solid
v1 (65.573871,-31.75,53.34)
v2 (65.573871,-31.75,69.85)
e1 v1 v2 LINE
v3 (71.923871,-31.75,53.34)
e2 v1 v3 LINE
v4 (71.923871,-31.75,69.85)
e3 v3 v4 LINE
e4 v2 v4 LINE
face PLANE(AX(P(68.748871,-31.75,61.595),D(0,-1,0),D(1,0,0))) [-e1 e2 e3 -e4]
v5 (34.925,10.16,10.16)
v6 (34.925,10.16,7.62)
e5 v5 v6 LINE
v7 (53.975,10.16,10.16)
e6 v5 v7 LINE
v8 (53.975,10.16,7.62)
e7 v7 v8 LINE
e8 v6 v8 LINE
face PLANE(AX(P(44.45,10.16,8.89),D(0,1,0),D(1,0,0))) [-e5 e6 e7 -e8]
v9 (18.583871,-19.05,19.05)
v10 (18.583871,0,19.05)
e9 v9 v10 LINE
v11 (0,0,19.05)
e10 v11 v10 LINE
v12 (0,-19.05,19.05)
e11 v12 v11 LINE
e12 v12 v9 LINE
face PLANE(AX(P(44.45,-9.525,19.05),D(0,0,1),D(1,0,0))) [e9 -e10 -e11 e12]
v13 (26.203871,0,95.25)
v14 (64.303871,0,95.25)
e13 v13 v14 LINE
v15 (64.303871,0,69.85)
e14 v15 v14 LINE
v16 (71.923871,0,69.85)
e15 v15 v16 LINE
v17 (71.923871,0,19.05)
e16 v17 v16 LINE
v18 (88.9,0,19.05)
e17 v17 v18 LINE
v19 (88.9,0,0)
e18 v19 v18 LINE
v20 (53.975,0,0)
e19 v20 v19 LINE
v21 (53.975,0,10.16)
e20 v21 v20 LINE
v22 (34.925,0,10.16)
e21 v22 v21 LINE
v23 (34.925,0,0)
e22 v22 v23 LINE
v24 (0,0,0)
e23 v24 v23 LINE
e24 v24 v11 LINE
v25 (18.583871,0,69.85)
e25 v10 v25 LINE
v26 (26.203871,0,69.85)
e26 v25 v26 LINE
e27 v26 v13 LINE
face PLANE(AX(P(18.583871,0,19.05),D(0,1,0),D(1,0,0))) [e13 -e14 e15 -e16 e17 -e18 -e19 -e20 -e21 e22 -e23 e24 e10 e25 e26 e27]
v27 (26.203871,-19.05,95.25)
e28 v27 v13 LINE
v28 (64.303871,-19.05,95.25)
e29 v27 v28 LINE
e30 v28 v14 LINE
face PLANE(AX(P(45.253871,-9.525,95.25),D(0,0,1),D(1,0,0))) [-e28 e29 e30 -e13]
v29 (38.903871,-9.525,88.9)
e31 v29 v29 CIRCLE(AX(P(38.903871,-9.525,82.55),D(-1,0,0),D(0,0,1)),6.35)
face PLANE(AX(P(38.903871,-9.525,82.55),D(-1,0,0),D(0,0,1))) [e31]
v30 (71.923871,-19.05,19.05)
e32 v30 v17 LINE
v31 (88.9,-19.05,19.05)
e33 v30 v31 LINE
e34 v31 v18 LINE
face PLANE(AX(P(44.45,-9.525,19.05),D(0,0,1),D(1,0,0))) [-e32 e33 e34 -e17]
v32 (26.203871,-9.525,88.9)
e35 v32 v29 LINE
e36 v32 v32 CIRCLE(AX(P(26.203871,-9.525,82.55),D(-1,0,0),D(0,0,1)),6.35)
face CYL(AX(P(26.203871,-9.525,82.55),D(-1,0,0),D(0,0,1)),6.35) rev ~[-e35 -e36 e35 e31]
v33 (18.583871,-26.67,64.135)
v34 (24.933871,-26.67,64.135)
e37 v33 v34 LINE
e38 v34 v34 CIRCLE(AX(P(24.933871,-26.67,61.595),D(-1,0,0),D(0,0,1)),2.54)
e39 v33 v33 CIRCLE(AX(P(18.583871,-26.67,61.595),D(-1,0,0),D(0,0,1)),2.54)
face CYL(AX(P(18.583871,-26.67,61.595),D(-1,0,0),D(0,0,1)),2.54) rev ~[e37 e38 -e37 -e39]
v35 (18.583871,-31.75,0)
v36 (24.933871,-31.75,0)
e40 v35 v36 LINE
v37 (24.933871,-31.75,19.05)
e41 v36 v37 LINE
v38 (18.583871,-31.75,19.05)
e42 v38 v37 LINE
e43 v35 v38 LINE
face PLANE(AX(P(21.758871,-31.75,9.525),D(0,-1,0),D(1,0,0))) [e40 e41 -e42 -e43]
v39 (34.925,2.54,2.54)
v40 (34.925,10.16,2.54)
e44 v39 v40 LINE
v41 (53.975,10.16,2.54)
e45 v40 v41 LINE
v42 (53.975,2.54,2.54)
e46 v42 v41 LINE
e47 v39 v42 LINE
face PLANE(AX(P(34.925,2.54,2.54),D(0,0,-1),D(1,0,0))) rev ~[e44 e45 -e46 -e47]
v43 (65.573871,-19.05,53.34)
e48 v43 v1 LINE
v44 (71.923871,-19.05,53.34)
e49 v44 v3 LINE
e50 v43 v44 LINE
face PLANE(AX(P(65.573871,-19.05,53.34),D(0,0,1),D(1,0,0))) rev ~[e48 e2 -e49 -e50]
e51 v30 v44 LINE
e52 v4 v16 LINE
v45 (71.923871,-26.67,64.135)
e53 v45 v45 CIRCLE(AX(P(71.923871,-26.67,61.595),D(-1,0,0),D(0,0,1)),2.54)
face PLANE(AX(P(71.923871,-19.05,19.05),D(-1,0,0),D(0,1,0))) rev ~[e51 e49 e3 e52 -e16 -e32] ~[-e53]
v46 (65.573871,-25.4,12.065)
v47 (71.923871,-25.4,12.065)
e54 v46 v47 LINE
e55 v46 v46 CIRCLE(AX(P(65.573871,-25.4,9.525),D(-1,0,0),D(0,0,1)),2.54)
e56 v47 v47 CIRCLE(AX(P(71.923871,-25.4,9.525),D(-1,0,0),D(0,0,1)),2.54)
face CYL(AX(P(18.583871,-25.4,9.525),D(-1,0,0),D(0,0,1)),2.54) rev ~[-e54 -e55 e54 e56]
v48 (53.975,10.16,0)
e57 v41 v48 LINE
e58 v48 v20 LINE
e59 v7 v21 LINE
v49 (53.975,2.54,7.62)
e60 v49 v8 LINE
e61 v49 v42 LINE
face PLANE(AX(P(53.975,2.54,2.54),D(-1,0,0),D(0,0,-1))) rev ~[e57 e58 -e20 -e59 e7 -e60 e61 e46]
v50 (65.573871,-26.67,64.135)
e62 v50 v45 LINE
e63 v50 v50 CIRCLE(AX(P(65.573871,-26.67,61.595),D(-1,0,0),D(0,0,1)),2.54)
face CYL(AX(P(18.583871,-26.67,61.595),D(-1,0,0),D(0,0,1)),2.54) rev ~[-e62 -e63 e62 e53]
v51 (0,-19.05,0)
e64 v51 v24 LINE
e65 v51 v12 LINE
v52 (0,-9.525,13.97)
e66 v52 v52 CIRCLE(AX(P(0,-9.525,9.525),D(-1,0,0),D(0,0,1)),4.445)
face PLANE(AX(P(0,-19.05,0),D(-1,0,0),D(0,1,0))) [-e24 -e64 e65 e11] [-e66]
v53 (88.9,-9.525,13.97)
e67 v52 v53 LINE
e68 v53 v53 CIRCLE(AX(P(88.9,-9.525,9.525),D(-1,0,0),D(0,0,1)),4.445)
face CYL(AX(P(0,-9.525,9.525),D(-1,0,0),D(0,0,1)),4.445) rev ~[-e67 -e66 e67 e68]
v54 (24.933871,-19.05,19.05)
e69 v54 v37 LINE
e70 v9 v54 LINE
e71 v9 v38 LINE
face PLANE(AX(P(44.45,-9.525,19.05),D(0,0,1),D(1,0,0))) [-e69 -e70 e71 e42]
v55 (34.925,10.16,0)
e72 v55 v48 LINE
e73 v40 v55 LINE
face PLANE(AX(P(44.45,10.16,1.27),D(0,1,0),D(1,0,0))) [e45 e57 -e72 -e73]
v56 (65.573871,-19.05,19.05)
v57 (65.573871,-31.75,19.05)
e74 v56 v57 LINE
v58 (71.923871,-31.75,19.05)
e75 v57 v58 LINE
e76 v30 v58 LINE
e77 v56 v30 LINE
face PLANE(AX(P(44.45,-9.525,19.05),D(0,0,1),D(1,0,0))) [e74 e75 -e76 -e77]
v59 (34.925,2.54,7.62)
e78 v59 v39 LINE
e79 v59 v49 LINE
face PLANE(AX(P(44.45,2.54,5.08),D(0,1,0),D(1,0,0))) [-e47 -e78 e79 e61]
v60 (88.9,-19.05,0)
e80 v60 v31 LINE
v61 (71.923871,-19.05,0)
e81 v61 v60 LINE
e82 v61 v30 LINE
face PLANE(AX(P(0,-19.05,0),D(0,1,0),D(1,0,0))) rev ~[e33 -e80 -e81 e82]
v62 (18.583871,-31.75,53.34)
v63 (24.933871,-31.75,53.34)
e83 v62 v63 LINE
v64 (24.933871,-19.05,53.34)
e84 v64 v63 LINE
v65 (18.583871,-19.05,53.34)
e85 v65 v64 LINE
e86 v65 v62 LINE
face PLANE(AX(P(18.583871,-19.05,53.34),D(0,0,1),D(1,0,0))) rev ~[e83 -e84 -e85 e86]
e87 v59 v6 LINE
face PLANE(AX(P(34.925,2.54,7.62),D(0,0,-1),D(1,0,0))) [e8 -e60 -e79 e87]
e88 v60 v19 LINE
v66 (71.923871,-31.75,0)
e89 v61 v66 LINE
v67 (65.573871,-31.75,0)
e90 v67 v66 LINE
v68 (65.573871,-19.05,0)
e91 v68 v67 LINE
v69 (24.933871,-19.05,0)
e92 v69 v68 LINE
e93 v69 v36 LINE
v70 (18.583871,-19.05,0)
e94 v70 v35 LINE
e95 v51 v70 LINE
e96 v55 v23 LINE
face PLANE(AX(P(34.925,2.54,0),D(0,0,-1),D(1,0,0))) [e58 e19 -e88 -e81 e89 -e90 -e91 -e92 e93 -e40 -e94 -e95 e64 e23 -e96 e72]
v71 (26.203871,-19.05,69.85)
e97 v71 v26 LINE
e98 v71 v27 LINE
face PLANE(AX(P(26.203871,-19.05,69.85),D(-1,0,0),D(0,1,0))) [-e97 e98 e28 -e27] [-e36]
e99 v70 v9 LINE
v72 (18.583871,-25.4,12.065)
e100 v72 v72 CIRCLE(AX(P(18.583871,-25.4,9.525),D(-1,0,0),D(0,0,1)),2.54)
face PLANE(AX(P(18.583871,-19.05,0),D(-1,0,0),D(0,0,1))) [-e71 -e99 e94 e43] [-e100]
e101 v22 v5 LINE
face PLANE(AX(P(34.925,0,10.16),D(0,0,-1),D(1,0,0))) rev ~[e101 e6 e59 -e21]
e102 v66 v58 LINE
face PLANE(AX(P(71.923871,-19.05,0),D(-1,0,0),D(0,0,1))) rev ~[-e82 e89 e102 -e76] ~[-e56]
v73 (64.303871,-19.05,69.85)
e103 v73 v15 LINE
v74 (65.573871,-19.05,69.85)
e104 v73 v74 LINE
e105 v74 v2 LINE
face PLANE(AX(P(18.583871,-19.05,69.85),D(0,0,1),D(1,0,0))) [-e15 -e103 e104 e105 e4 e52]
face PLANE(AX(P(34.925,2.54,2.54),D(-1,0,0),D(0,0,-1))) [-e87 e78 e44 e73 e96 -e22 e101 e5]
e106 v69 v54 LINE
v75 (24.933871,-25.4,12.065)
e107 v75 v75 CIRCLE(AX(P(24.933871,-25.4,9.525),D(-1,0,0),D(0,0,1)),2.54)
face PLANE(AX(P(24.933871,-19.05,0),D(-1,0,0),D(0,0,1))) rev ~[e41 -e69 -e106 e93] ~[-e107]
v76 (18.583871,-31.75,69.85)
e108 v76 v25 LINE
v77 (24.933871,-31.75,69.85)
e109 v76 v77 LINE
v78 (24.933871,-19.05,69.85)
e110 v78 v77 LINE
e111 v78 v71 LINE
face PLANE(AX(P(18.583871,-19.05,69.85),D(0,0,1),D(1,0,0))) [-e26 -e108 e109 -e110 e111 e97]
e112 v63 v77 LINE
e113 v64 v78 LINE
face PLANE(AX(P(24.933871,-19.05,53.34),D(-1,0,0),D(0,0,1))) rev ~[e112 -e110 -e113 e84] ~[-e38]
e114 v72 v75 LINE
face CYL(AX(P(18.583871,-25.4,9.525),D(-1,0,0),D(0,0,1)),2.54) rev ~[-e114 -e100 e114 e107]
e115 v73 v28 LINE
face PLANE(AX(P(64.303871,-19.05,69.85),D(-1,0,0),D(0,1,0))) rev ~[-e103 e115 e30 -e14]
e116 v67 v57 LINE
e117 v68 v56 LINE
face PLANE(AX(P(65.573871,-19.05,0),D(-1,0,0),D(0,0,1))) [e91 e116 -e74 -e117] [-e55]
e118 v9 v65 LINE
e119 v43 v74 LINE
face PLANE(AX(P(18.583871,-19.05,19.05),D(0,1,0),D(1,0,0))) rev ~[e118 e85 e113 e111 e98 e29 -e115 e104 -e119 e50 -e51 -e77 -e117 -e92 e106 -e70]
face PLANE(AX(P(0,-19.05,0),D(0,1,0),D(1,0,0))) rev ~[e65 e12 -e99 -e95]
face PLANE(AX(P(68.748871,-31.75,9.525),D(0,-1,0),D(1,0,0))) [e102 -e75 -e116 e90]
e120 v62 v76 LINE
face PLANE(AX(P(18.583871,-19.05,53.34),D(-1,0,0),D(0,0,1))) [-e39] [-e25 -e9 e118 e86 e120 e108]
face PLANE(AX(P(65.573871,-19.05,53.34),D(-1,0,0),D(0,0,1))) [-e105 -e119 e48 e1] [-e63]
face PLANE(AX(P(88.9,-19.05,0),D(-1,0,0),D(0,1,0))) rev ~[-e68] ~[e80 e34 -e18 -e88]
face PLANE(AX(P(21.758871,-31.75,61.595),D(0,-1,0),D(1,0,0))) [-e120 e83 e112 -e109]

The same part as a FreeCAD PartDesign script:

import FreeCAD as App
import Part
import Sketcher

V = App.Vector
Q = App.Units.Quantity

doc = App.newDocument("Part")
body = doc.addObject("PartDesign::Body", "Body")

# Sketch on XY plane
sketch1 = doc.addObject("Sketcher::SketchObject", "Sketch")
body.addObject(sketch1)
sketch1.AttachmentSupport = (doc.XY_Plane, [""])
sketch1.MapMode = "FlatFace"
sketch1.addGeometry([
    Part.LineSegment(V(0, 0, 0), V(0, -19, 0)),
    Part.LineSegment(V(0, -19, 0), V(89, -19, 0)),
    Part.LineSegment(V(89, -19, 0), V(89, 0, 0)),
    Part.LineSegment(V(89, 0, 0), V(0, 0, 0)),
], False)
sketch1.addConstraint([
    Sketcher.Constraint("Coincident", 0, 2, 1, 1),
    Sketcher.Constraint("Coincident", 1, 2, 2, 1),
    Sketcher.Constraint("Coincident", 2, 2, 3, 1),
    Sketcher.Constraint("Coincident", 3, 2, 0, 1),
    Sketcher.Constraint("Vertical", 0),
    Sketcher.Constraint("Horizontal", 1),
    Sketcher.Constraint("Vertical", 2),
    Sketcher.Constraint("Horizontal", 3),
    Sketcher.Constraint("Coincident", 3, 2, -1, 1),
    Sketcher.Constraint("DistanceX", 1, 1, 1, 2, Q("3.5 in")),
    Sketcher.Constraint("DistanceY", 0, 2, 0, 1, Q("0.75 in")),
])
pad1 = doc.addObject("PartDesign::Pad", "Pad")
body.addObject(pad1)
pad1.Profile = sketch1
pad1.Length = Q("0.75 in")

# Sketch on XZ plane
sketch2 = doc.addObject("Sketcher::SketchObject", "Sketch001")
body.addObject(sketch2)
sketch2.AttachmentSupport = (doc.XZ_Plane, [""])
sketch2.MapMode = "FlatFace"
sketch2.AttachmentOffset = App.Placement(V(0, 0, 0.75 * 25.4), App.Rotation())
sketch2.addGeometry([
    Part.LineSegment(V(19, 19, 0), V(19, 0, 0)),  # 0
    Part.LineSegment(V(19, 0, 0), V(25, 0, 0)),  # 1
    Part.LineSegment(V(25, 0, 0), V(25, 19, 0)),  # 2
    Part.LineSegment(V(25, 19, 0), V(19, 19, 0)),  # 3
    Part.LineSegment(V(66, 19, 0), V(66, 0, 0)),  # 4
    Part.LineSegment(V(66, 0, 0), V(72, 0, 0)),  # 5
    Part.LineSegment(V(72, 0, 0), V(72, 19, 0)),  # 6
    Part.LineSegment(V(72, 19, 0), V(66, 19, 0)),  # 7
], False)
sketch2.addConstraint([
    Sketcher.Constraint("Coincident", 0, 2, 1, 1),
    Sketcher.Constraint("Coincident", 1, 2, 2, 1),
    Sketcher.Constraint("Coincident", 2, 2, 3, 1),
    Sketcher.Constraint("Coincident", 3, 2, 0, 1),
    Sketcher.Constraint("Coincident", 4, 2, 5, 1),
    Sketcher.Constraint("Coincident", 5, 2, 6, 1),
    Sketcher.Constraint("Coincident", 6, 2, 7, 1),
    Sketcher.Constraint("Coincident", 7, 2, 4, 1),
    Sketcher.Constraint("Vertical", 0),
    Sketcher.Constraint("Horizontal", 1),
    Sketcher.Constraint("Vertical", 2),
    Sketcher.Constraint("Horizontal", 3),
    Sketcher.Constraint("Vertical", 4),
    Sketcher.Constraint("Horizontal", 5),
    Sketcher.Constraint("Vertical", 6),
    Sketcher.Constraint("Horizontal", 7),
    Sketcher.Constraint("PointOnObject", 0, 2, -1),
    Sketcher.Constraint("PointOnObject", 4, 2, -1),
    Sketcher.Constraint("Horizontal", 3, 2, 6, 2),
    Sketcher.Constraint("Equal", 3, 5),
    Sketcher.Constraint("DistanceX", 1, 1, 1, 2, Q("0.25 in")),
    Sketcher.Constraint("DistanceY", 0, 2, 0, 1, Q("0.75 in")),
    Sketcher.Constraint("DistanceX", 1, 2, 4, 2, Q("1.6 in")),
    Sketcher.Constraint("DistanceX", -1, 1, 0, 2, Q("18.583871 mm")),
])
pad2 = doc.addObject("PartDesign::Pad", "Pad001")
body.addObject(pad2)
pad2.Profile = sketch2
pad2.Length = Q("0.5 in")

# Sketch on YZ plane
sketch3 = doc.addObject("Sketcher::SketchObject", "Sketch002")
body.addObject(sketch3)
sketch3.AttachmentSupport = (doc.YZ_Plane, [""])
sketch3.MapMode = "FlatFace"
sketch3.addGeometry(Part.Circle(V(-9.5, 9.5, 0), V(0, 0, 1), 4.4), False)
sketch3.addConstraint([
    Sketcher.Constraint("Diameter", 0, Q("0.35 in")),
    Sketcher.Constraint("DistanceX", 0, 3, -1, 1, Q("0.375 in")),
    Sketcher.Constraint("DistanceY", -1, 1, 0, 3, Q("0.375 in")),
])
pocket1 = doc.addObject("PartDesign::Pocket", "Pocket")
body.addObject(pocket1)
pocket1.Profile = sketch3
pocket1.Length = Q("3.79 in")
pocket1.Reversed = True

# Sketch on YZ plane
sketch4 = doc.addObject("Sketcher::SketchObject", "Sketch003")
body.addObject(sketch4)
sketch4.AttachmentSupport = (doc.YZ_Plane, [""])
sketch4.MapMode = "FlatFace"
sketch4.AttachmentOffset = App.Placement(V(0, 0, 18.583871), App.Rotation())
sketch4.addGeometry(Part.Circle(V(-25.4, 9.5, 0), V(0, 0, 1), 2.5), False)
sketch4.addConstraint([
    Sketcher.Constraint("Diameter", 0, Q("0.2 in")),
    Sketcher.Constraint("DistanceX", 0, 3, -1, 1, Q("1 in")),
    Sketcher.Constraint("DistanceY", -1, 1, 0, 3, Q("0.375 in")),
])
pocket2 = doc.addObject("PartDesign::Pocket", "Pocket001")
body.addObject(pocket2)
pocket2.Profile = sketch4
pocket2.Length = Q("3.79 in")
pocket2.Reversed = True

# Sketch on XY plane
sketch5 = doc.addObject("Sketcher::SketchObject", "Sketch004")
body.addObject(sketch5)
sketch5.AttachmentSupport = (doc.XY_Plane, [""])
sketch5.MapMode = "FlatFace"
sketch5.AttachmentOffset = App.Placement(V(0, 0, 0.75 * 25.4), App.Rotation())
sketch5.addGeometry([
    Part.LineSegment(V(19, 0, 0), V(19, -19, 0)),
    Part.LineSegment(V(19, -19, 0), V(72, -19, 0)),
    Part.LineSegment(V(72, -19, 0), V(72, 0, 0)),
    Part.LineSegment(V(72, 0, 0), V(19, 0, 0)),
], False)
sketch5.addConstraint([
    Sketcher.Constraint("Coincident", 0, 2, 1, 1),
    Sketcher.Constraint("Coincident", 1, 2, 2, 1),
    Sketcher.Constraint("Coincident", 2, 2, 3, 1),
    Sketcher.Constraint("Coincident", 3, 2, 0, 1),
    Sketcher.Constraint("Vertical", 0),
    Sketcher.Constraint("Horizontal", 1),
    Sketcher.Constraint("Vertical", 2),
    Sketcher.Constraint("Horizontal", 3),
    Sketcher.Constraint("PointOnObject", 2, 2, -1),
    Sketcher.Constraint("DistanceX", 1, 1, 1, 2, Q("2.1 in")),
    Sketcher.Constraint("DistanceY", 0, 2, 0, 1, Q("0.75 in")),
    Sketcher.Constraint("DistanceX", -1, 1, 0, 2, Q("18.583871 mm")),
])
pad3 = doc.addObject("PartDesign::Pad", "Pad002")
body.addObject(pad3)
pad3.Profile = sketch5
pad3.Length = Q("2 in")

# Sketch on XZ plane
sketch6 = doc.addObject("Sketcher::SketchObject", "Sketch005")
body.addObject(sketch6)
sketch6.AttachmentSupport = (doc.XZ_Plane, [""])
sketch6.MapMode = "FlatFace"
sketch6.AttachmentOffset = App.Placement(V(0, 0, 0.75 * 25.4), App.Rotation())
sketch6.addGeometry([
    Part.LineSegment(V(19, 70, 0), V(19, 53, 0)),  # 0
    Part.LineSegment(V(19, 53, 0), V(25, 53, 0)),  # 1
    Part.LineSegment(V(25, 53, 0), V(25, 70, 0)),  # 2
    Part.LineSegment(V(25, 70, 0), V(19, 70, 0)),  # 3
    Part.LineSegment(V(66, 70, 0), V(66, 53, 0)),  # 4
    Part.LineSegment(V(66, 53, 0), V(72, 53, 0)),  # 5
    Part.LineSegment(V(72, 53, 0), V(72, 70, 0)),  # 6
    Part.LineSegment(V(72, 70, 0), V(66, 70, 0)),  # 7
], False)
sketch6.addConstraint([
    Sketcher.Constraint("Coincident", 0, 2, 1, 1),
    Sketcher.Constraint("Coincident", 1, 2, 2, 1),
    Sketcher.Constraint("Coincident", 2, 2, 3, 1),
    Sketcher.Constraint("Coincident", 3, 2, 0, 1),
    Sketcher.Constraint("Coincident", 4, 2, 5, 1),
    Sketcher.Constraint("Coincident", 5, 2, 6, 1),
    Sketcher.Constraint("Coincident", 6, 2, 7, 1),
    Sketcher.Constraint("Coincident", 7, 2, 4, 1),
    Sketcher.Constraint("Vertical", 0),
    Sketcher.Constraint("Horizontal", 1),
    Sketcher.Constraint("Vertical", 2),
    Sketcher.Constraint("Horizontal", 3),
    Sketcher.Constraint("Vertical", 4),
    Sketcher.Constraint("Horizontal", 5),
    Sketcher.Constraint("Vertical", 6),
    Sketcher.Constraint("Horizontal", 7),
    Sketcher.Constraint("Horizontal", 1, 2, 4, 2),
    Sketcher.Constraint("Horizontal", 3, 2, 6, 2),
    Sketcher.Constraint("Equal", 3, 5),
    Sketcher.Constraint("DistanceX", 1, 1, 1, 2, Q("0.25 in")),
    Sketcher.Constraint("DistanceY", 0, 2, 0, 1, Q("0.65 in")),
    Sketcher.Constraint("DistanceY", -1, 1, 0, 2, Q("2.1 in")),
    Sketcher.Constraint("DistanceX", 1, 2, 4, 2, Q("1.6 in")),
    Sketcher.Constraint("DistanceX", -1, 1, 0, 2, Q("18.583871 mm")),
])
pad4 = doc.addObject("PartDesign::Pad", "Pad003")
body.addObject(pad4)
pad4.Profile = sketch6
pad4.Length = Q("0.5 in")

# Sketch on YZ plane
sketch7 = doc.addObject("Sketcher::SketchObject", "Sketch006")
body.addObject(sketch7)
sketch7.AttachmentSupport = (doc.YZ_Plane, [""])
sketch7.MapMode = "FlatFace"
sketch7.AttachmentOffset = App.Placement(V(0, 0, 18.583871), App.Rotation())
sketch7.addGeometry(Part.Circle(V(-26.7, 61.6, 0), V(0, 0, 1), 2.5), False)
sketch7.addConstraint([
    Sketcher.Constraint("Diameter", 0, Q("0.2 in")),
    Sketcher.Constraint("DistanceX", 0, 3, -1, 1, Q("1.05 in")),
    Sketcher.Constraint("DistanceY", -1, 1, 0, 3, Q("2.425 in")),
])
pocket3 = doc.addObject("PartDesign::Pocket", "Pocket002")
body.addObject(pocket3)
pocket3.Profile = sketch7
pocket3.Length = Q("2.44 in")
pocket3.Reversed = True

# Sketch on XZ plane
sketch8 = doc.addObject("Sketcher::SketchObject", "Sketch007")
body.addObject(sketch8)
sketch8.AttachmentSupport = (doc.XZ_Plane, [""])
sketch8.MapMode = "FlatFace"
sketch8.addGeometry([
    Part.LineSegment(V(35, 0, 0), V(35, 10, 0)),
    Part.LineSegment(V(35, 10, 0), V(54, 10, 0)),
    Part.LineSegment(V(54, 10, 0), V(54, 0, 0)),
    Part.LineSegment(V(54, 0, 0), V(35, 0, 0)),
], False)
sketch8.addConstraint([
    Sketcher.Constraint("Coincident", 0, 2, 1, 1),
    Sketcher.Constraint("Coincident", 1, 2, 2, 1),
    Sketcher.Constraint("Coincident", 2, 2, 3, 1),
    Sketcher.Constraint("Coincident", 3, 2, 0, 1),
    Sketcher.Constraint("Vertical", 0),
    Sketcher.Constraint("Horizontal", 1),
    Sketcher.Constraint("Vertical", 2),
    Sketcher.Constraint("Horizontal", 3),
    Sketcher.Constraint("PointOnObject", 2, 2, -1),
    Sketcher.Constraint("DistanceY", 0, 1, 0, 2, Q("0.4 in")),
    Sketcher.Constraint("DistanceX", 1, 1, 1, 2, Q("0.75 in")),
    Sketcher.Constraint("DistanceX", -1, 1, 0, 2, Q("1.375 in")),
])
pad5 = doc.addObject("PartDesign::Pad", "Pad004")
body.addObject(pad5)
pad5.Profile = sketch8
pad5.Length = Q("0.1 in")
pad5.Reversed = True

# Sketch on XZ plane
sketch9 = doc.addObject("Sketcher::SketchObject", "Sketch008")
body.addObject(sketch9)
sketch9.AttachmentSupport = (doc.XZ_Plane, [""])
sketch9.MapMode = "FlatFace"
sketch9.AttachmentOffset = App.Placement(V(0, 0, -0.1 * 25.4), App.Rotation())
sketch9.addGeometry([
    Part.LineSegment(V(34.9, 0, 0), V(34.9, 2.5, 0)),  # 0
    Part.LineSegment(V(34.9, 2.5, 0), V(54, 2.5, 0)),  # 1
    Part.LineSegment(V(54, 2.5, 0), V(54, 0, 0)),  # 2
    Part.LineSegment(V(54, 0, 0), V(34.9, 0, 0)),  # 3
    Part.LineSegment(V(34.9, 7.6, 0), V(34.9, 10.2, 0)),  # 4
    Part.LineSegment(V(34.9, 10.2, 0), V(54, 10.2, 0)),  # 5
    Part.LineSegment(V(54, 10.2, 0), V(54, 7.6, 0)),  # 6
    Part.LineSegment(V(54, 7.6, 0), V(34.9, 7.6, 0)),  # 7
], False)
sketch9.addConstraint([
    Sketcher.Constraint("Coincident", 0, 2, 1, 1),
    Sketcher.Constraint("Coincident", 1, 2, 2, 1),
    Sketcher.Constraint("Coincident", 2, 2, 3, 1),
    Sketcher.Constraint("Coincident", 3, 2, 0, 1),
    Sketcher.Constraint("Coincident", 4, 2, 5, 1),
    Sketcher.Constraint("Coincident", 5, 2, 6, 1),
    Sketcher.Constraint("Coincident", 6, 2, 7, 1),
    Sketcher.Constraint("Coincident", 7, 2, 4, 1),
    Sketcher.Constraint("Vertical", 0),
    Sketcher.Constraint("Horizontal", 1),
    Sketcher.Constraint("Vertical", 2),
    Sketcher.Constraint("Horizontal", 3),
    Sketcher.Constraint("Vertical", 4),
    Sketcher.Constraint("Horizontal", 5),
    Sketcher.Constraint("Vertical", 6),
    Sketcher.Constraint("Horizontal", 7),
    Sketcher.Constraint("PointOnObject", 2, 2, -1),
    Sketcher.Constraint("Vertical", 3, 2, 4, 2),
    Sketcher.Constraint("Vertical", 2, 2, 5, 2),
    Sketcher.Constraint("Equal", 2, 4),
    Sketcher.Constraint("DistanceY", 0, 1, 0, 2, Q("0.1 in")),
    Sketcher.Constraint("DistanceX", 1, 1, 1, 2, Q("0.75 in")),
    Sketcher.Constraint("DistanceY", -1, 1, 4, 2, Q("0.4 in")),
    Sketcher.Constraint("DistanceX", -1, 1, 0, 2, Q("1.375 in")),
])
pad6 = doc.addObject("PartDesign::Pad", "Pad005")
body.addObject(pad6)
pad6.Profile = sketch9
pad6.Length = Q("0.3 in")
pad6.Reversed = True

# Sketch on XY plane
sketch10 = doc.addObject("Sketcher::SketchObject", "Sketch009")
body.addObject(sketch10)
sketch10.AttachmentSupport = (doc.XY_Plane, [""])
sketch10.MapMode = "FlatFace"
sketch10.AttachmentOffset = App.Placement(V(0, 0, 2.75 * 25.4), App.Rotation())
sketch10.addGeometry([
    Part.LineSegment(V(26, 0, 0), V(26, -19, 0)),
    Part.LineSegment(V(26, -19, 0), V(64, -19, 0)),
    Part.LineSegment(V(64, -19, 0), V(64, 0, 0)),
    Part.LineSegment(V(64, 0, 0), V(26, 0, 0)),
], False)
sketch10.addConstraint([
    Sketcher.Constraint("Coincident", 0, 2, 1, 1),
    Sketcher.Constraint("Coincident", 1, 2, 2, 1),
    Sketcher.Constraint("Coincident", 2, 2, 3, 1),
    Sketcher.Constraint("Coincident", 3, 2, 0, 1),
    Sketcher.Constraint("Vertical", 0),
    Sketcher.Constraint("Horizontal", 1),
    Sketcher.Constraint("Vertical", 2),
    Sketcher.Constraint("Horizontal", 3),
    Sketcher.Constraint("PointOnObject", 2, 2, -1),
    Sketcher.Constraint("DistanceX", 1, 1, 1, 2, Q("1.5 in")),
    Sketcher.Constraint("DistanceY", 0, 2, 0, 1, Q("0.75 in")),
    Sketcher.Constraint("DistanceX", -1, 1, 0, 2, Q("26.203871 mm")),
])
pad7 = doc.addObject("PartDesign::Pad", "Pad006")
body.addObject(pad7)
pad7.Profile = sketch10
pad7.Length = Q("1 in")

# Sketch on YZ plane
sketch11 = doc.addObject("Sketcher::SketchObject", "Sketch010")
body.addObject(sketch11)
sketch11.AttachmentSupport = (doc.YZ_Plane, [""])
sketch11.MapMode = "FlatFace"
sketch11.AttachmentOffset = App.Placement(V(0, 0, 26.203871), App.Rotation())
sketch11.addGeometry(Part.Circle(V(-10, 83, 0), V(0, 0, 1), 6), False)
sketch11.addConstraint([
    Sketcher.Constraint("Diameter", 0, Q("0.5 in")),
    Sketcher.Constraint("DistanceY", -1, 1, 0, 3, Q("3.25 in")),
    Sketcher.Constraint("DistanceX", 0, 3, -1, 1, Q("0.375 in")),
])
pocket4 = doc.addObject("PartDesign::Pocket", "Pocket003")
body.addObject(pocket4)
pocket4.Profile = sketch11
pocket4.Length = Q("0.5 in")
pocket4.Reversed = True

doc.recompute()
